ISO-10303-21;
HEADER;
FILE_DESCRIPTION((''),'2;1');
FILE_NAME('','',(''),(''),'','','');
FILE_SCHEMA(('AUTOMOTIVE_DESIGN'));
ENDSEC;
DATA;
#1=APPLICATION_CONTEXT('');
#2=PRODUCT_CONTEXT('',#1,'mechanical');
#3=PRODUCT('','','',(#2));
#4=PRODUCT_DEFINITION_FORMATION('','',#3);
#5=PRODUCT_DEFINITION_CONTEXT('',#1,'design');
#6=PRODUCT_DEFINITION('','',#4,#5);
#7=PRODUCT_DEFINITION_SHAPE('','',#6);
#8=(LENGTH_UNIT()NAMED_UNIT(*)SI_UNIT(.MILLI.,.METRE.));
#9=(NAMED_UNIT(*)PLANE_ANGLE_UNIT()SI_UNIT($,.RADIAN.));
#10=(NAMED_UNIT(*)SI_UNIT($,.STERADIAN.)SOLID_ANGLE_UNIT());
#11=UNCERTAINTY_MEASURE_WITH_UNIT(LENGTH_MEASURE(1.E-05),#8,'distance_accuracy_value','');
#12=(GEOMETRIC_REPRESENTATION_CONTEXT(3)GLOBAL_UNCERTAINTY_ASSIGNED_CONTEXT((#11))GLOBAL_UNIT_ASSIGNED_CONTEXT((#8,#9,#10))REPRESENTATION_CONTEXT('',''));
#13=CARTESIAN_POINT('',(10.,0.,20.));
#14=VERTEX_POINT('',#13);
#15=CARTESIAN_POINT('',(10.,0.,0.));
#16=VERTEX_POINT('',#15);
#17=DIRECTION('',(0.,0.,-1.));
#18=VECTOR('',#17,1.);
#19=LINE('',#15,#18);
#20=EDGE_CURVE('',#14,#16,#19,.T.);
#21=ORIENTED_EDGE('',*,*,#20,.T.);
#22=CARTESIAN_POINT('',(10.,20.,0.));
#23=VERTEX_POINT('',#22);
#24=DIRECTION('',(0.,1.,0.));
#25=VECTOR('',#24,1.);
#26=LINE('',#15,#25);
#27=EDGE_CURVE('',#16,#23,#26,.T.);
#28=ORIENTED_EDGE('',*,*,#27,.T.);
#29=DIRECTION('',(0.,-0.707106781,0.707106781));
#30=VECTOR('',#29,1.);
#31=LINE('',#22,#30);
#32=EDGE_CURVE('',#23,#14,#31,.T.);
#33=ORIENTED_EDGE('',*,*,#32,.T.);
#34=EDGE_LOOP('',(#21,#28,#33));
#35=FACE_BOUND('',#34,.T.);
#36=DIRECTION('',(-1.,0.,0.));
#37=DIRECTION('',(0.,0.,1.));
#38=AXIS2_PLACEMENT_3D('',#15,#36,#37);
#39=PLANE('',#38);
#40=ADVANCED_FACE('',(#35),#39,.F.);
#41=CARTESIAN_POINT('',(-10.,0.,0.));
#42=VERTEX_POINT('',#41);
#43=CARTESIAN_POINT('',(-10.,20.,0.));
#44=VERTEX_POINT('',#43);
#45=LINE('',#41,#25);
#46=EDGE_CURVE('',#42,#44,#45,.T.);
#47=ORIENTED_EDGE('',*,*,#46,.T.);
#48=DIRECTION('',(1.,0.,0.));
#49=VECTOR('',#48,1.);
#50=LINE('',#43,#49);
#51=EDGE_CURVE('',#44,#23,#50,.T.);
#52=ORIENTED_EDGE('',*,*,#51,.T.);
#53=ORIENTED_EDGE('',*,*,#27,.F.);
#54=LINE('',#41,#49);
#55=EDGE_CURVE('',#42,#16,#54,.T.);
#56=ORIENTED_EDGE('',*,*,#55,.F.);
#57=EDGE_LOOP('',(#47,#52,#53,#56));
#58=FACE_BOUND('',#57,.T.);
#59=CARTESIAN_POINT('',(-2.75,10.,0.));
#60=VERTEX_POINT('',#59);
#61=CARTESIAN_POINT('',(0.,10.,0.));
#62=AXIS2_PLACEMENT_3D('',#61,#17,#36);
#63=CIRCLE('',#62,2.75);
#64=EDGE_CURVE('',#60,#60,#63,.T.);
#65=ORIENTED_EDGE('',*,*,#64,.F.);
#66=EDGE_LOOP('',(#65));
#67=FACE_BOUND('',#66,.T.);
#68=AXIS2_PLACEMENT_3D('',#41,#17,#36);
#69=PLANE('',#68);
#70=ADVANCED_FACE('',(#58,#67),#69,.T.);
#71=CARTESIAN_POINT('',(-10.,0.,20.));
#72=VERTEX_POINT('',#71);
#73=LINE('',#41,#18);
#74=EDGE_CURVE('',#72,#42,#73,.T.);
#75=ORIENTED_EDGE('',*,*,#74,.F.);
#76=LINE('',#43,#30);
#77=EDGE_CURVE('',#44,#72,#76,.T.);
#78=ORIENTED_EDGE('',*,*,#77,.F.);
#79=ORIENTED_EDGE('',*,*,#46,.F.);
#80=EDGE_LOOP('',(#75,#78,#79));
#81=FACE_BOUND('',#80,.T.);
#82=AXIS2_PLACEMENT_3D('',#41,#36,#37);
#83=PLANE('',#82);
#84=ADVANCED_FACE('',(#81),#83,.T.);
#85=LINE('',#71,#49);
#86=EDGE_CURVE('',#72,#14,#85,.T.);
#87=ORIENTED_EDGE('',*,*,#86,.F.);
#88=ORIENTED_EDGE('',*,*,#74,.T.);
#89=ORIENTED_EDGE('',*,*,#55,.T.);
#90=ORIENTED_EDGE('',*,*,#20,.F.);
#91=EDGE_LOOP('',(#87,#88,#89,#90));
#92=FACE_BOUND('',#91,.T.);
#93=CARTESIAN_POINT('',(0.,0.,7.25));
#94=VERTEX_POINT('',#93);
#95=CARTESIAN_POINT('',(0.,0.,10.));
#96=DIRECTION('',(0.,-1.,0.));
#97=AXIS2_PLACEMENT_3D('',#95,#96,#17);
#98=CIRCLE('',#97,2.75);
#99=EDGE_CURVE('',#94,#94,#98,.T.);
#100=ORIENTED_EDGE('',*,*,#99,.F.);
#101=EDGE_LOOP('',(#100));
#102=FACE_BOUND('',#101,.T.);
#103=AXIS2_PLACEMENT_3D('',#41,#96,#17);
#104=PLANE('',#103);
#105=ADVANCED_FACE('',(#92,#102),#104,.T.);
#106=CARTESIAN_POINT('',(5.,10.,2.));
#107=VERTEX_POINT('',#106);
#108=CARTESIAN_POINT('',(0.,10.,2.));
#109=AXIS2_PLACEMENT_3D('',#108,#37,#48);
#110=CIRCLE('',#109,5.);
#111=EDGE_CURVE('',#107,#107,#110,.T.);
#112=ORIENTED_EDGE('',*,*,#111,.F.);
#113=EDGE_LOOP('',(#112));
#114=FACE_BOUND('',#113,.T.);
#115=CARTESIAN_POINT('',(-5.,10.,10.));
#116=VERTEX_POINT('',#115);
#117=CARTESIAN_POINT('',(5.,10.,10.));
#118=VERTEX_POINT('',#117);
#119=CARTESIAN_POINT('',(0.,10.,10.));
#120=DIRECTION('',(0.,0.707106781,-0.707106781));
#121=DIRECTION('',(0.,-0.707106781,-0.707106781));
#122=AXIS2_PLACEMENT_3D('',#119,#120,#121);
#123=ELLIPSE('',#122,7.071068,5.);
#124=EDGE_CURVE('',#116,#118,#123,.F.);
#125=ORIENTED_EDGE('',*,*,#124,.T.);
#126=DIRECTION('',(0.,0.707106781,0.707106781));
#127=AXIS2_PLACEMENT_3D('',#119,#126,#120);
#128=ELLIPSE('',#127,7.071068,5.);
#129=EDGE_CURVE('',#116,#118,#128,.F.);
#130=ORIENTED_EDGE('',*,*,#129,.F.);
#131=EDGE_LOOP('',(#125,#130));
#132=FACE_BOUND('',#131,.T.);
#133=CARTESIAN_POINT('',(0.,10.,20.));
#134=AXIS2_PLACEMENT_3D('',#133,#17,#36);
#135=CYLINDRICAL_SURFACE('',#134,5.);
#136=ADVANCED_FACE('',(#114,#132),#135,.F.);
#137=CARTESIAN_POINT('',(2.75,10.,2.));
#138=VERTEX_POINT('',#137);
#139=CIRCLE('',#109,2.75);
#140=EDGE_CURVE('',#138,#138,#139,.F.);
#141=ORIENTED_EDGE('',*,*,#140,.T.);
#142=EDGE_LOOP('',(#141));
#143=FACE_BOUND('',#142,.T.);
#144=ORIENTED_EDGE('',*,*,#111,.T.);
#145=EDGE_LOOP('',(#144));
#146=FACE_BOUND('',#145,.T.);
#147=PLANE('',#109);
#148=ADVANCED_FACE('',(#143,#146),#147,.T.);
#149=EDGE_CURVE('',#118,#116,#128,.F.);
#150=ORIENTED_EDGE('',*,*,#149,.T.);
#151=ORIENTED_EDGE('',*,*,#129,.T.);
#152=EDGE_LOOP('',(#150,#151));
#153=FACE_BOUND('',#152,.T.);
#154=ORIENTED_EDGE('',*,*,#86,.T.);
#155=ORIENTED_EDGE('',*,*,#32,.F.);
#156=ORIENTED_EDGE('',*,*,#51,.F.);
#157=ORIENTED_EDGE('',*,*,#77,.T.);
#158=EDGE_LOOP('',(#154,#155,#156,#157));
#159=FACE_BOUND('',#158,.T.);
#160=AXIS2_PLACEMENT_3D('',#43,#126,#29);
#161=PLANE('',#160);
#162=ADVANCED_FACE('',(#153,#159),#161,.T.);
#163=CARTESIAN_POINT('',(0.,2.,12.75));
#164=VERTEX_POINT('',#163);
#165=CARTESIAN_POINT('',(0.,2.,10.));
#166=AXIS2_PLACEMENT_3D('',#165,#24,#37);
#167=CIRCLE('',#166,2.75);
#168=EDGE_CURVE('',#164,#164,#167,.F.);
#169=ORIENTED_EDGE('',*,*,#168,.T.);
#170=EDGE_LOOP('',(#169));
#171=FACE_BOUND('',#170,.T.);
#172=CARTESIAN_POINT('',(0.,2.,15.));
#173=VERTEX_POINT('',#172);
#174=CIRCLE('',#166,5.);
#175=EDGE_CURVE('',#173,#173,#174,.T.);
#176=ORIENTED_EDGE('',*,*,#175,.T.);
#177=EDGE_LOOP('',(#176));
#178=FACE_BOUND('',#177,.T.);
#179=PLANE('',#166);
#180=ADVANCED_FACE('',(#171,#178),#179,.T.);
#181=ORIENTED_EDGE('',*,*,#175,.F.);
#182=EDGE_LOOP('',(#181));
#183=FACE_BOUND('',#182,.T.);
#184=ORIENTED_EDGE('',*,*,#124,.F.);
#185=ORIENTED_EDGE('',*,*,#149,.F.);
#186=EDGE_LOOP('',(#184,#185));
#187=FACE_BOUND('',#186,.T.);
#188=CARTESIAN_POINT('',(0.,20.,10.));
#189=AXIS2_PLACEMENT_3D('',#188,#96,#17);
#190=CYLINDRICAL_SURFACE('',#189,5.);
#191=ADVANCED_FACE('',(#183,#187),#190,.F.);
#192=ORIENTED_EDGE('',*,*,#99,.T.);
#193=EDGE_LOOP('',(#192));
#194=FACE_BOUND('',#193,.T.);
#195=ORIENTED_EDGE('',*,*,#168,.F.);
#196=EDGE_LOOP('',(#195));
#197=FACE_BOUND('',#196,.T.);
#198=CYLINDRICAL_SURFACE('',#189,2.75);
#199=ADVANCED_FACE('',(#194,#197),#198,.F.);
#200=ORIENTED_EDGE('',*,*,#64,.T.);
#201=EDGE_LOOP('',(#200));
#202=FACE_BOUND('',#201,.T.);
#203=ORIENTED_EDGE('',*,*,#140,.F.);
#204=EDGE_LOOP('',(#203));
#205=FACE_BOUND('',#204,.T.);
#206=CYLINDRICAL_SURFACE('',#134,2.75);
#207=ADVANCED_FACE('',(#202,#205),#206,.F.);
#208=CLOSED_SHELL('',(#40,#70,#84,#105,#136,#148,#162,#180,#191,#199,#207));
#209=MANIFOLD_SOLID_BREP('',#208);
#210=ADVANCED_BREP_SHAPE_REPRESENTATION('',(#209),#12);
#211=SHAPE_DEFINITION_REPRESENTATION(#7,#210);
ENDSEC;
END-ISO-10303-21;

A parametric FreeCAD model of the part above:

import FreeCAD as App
import Part
import Sketcher

V = App.Vector


def add_polygon(sketch, points):
    """Adds a closed chain of lines whose ends are joined by coincident constraints."""
    first, n = sketch.GeometryCount, len(points)
    for a, b in zip(points, points[1:] + points[:1]):
        sketch.addGeometry(Part.LineSegment(App.Vector(*a, 0), App.Vector(*b, 0)), False)
    for i in range(n):
        sketch.addConstraint(Sketcher.Constraint("Coincident", first + i, 2, first + (i + 1) % n, 1))

doc = App.newDocument("Part")
params = doc.addObject("Spreadsheet::Sheet", "Params")
for row, (alias, value) in enumerate([
    ("sketch1_width", "20 mm"),
    ("pad1_length", "10 mm"),
    ("pad1_length2", "10 mm"),
    ("sketch2_diameter", "5.5 mm"),
    ("sketch3_diameter", "5.5 mm"),
    ("sketch4_diameter", "10 mm"),
    ("sketch5_diameter", "10 mm"),
], start=1):
    params.set(f"A{row}", alias)
    params.set(f"B{row}", "=" + value)
    params.setAlias(f"B{row}", alias)

body = doc.addObject("PartDesign::Body", "Body")

# Sketch on YZ plane
sketch1 = doc.addObject("Sketcher::SketchObject", "Sketch")
body.addObject(sketch1)
sketch1.AttachmentSupport = (doc.YZ_Plane, [""])
sketch1.MapMode = "FlatFace"
add_polygon(sketch1, [(0, 0), (20, 0), (0, 20)])  # lines 0-2
sketch1.addConstraint([
    Sketcher.Constraint("Horizontal", 0),
    Sketcher.Constraint("Vertical", 2),
    Sketcher.Constraint("Coincident", 2, 2, -1, 1),
    Sketcher.Constraint("Equal", 0, 2),
    Sketcher.Constraint("DistanceX", 0, 1, 0, 2, 20.0),
])
sketch1.setExpression("Constraints[7]", "Params.sketch1_width")
pad1 = doc.addObject("PartDesign::Pad", "Pad")
body.addObject(pad1)
pad1.Profile = sketch1
pad1.Type = "TwoLengths"
pad1.setExpression("Length", "Params.pad1_length")
pad1.setExpression("Length2", "Params.pad1_length2")

# Sketch on XZ plane
sketch2 = doc.addObject("Sketcher::SketchObject", "Sketch001")
body.addObject(sketch2)
sketch2.AttachmentSupport = (doc.XZ_Plane, [""])
sketch2.MapMode = "FlatFace"
sketch2.addGeometry(Part.Circle(V(0, 10, 0), V(0, 0, 1), 2.75), False)
sketch2.addConstraint([
    Sketcher.Constraint("PointOnObject", 0, 3, -2),
    Sketcher.Constraint("Diameter", 0, 5.5),
    Sketcher.Constraint("DistanceY", -1, 1, 0, 3, 10.0),
])
sketch2.setExpression("Constraints[1]", "Params.sketch2_diameter")
pocket1 = doc.addObject("PartDesign::Pocket", "Pocket")
body.addObject(pocket1)
pocket1.Profile = sketch2
pocket1.Type = "ThroughAll"

# Sketch on XY plane
sketch3 = doc.addObject("Sketcher::SketchObject", "Sketch002")
body.addObject(sketch3)
sketch3.AttachmentSupport = (doc.XY_Plane, [""])
sketch3.MapMode = "FlatFace"
sketch3.addGeometry(Part.Circle(V(0, 10, 0), V(0, 0, 1), 2.75), False)
sketch3.addConstraint([
    Sketcher.Constraint("PointOnObject", 0, 3, -2),
    Sketcher.Constraint("Diameter", 0, 5.5),
    Sketcher.Constraint("DistanceY", -1, 1, 0, 3, 10.0),
])
sketch3.setExpression("Constraints[1]", "Params.sketch3_diameter")
pocket2 = doc.addObject("PartDesign::Pocket", "Pocket001")
body.addObject(pocket2)
pocket2.Profile = sketch3
pocket2.Type = "ThroughAll"
pocket2.Reversed = True

# Sketch on XY plane
sketch4 = doc.addObject("Sketcher::SketchObject", "Sketch003")
body.addObject(sketch4)
sketch4.AttachmentSupport = (doc.XY_Plane, [""])
sketch4.MapMode = "FlatFace"
sketch4.AttachmentOffset = App.Placement(V(0, 0, 2), App.Rotation())
sketch4.addGeometry(Part.Circle(V(0, 10, 0), V(0, 0, 1), 5), False)
sketch4.addConstraint([
    Sketcher.Constraint("PointOnObject", 0, 3, -2),
    Sketcher.Constraint("Diameter", 0, 10.0),
    Sketcher.Constraint("DistanceY", -1, 1, 0, 3, 10.0),
])
sketch4.setExpression("Constraints[1]", "Params.sketch4_diameter")
pocket3 = doc.addObject("PartDesign::Pocket", "Pocket002")
body.addObject(pocket3)
pocket3.Profile = sketch4
pocket3.Type = "ThroughAll"
pocket3.Reversed = True

# Sketch on XZ plane
sketch5 = doc.addObject("Sketcher::SketchObject", "Sketch004")
body.addObject(sketch5)
sketch5.AttachmentSupport = (doc.XZ_Plane, [""])
sketch5.MapMode = "FlatFace"
sketch5.AttachmentOffset = App.Placement(V(0, 0, -2), App.Rotation())
sketch5.addGeometry(Part.Circle(V(0, 10, 0), V(0, 0, 1), 5), False)
sketch5.addConstraint([
    Sketcher.Constraint("PointOnObject", 0, 3, -2),
    Sketcher.Constraint("Diameter", 0, 10.0),
    Sketcher.Constraint("DistanceY", -1, 1, 0, 3, 10.0),
])
sketch5.setExpression("Constraints[1]", "Params.sketch5_diameter")
pocket4 = doc.addObject("PartDesign::Pocket", "Pocket003")
body.addObject(pocket4)
pocket4.Profile = sketch5
pocket4.Type = "ThroughAll"

doc.recompute()
